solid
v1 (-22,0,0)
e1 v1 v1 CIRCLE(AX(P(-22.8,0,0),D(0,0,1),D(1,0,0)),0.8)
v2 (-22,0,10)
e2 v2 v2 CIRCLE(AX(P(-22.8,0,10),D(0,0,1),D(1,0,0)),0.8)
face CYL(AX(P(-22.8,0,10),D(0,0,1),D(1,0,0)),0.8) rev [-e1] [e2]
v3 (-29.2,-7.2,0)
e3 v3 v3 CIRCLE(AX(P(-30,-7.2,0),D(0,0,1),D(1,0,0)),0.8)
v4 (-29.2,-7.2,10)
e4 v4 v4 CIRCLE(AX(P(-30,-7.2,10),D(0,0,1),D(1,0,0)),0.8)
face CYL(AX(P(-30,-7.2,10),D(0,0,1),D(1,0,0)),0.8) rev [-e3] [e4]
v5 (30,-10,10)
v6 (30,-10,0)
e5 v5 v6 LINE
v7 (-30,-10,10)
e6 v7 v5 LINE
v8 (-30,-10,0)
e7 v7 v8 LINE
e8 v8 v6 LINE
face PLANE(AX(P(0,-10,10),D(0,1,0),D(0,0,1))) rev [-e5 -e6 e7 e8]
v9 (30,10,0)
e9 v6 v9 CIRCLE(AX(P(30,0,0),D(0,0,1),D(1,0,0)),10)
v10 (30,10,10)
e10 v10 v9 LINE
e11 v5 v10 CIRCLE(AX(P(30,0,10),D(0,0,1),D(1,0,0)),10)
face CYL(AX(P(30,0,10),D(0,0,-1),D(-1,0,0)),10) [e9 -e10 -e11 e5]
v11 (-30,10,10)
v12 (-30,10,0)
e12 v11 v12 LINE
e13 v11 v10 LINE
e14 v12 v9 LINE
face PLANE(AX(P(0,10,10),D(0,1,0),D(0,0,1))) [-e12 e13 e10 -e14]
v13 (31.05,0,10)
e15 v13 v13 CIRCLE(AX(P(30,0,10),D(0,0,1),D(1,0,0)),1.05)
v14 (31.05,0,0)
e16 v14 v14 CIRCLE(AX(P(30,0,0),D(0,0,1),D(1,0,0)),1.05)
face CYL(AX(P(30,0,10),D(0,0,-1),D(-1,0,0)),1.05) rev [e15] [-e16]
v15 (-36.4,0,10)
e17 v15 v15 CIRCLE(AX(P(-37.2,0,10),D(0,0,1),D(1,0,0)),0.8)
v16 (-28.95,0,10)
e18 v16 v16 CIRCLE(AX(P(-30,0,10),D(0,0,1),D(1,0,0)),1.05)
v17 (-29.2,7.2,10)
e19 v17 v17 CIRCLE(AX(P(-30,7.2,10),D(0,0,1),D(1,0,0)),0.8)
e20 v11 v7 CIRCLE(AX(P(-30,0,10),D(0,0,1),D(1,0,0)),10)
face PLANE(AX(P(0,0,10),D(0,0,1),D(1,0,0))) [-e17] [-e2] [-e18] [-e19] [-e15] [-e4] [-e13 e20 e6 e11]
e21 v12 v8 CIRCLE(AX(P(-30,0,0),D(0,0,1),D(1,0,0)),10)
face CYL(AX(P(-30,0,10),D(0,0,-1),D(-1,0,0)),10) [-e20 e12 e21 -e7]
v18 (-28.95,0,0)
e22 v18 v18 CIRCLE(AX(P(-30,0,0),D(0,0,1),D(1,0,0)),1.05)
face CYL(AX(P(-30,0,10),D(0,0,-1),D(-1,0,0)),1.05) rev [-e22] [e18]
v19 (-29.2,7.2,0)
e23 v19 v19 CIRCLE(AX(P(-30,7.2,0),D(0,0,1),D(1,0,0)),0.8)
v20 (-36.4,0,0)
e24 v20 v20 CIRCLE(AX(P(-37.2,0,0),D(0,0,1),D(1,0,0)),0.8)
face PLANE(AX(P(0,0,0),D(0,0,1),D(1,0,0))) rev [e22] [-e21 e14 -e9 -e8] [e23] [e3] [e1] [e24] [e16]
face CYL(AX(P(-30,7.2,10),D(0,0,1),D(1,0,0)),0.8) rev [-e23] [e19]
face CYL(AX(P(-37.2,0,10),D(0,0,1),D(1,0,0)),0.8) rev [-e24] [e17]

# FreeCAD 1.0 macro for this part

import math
import FreeCAD as App
import Part
import Sketcher
from FreeCAD import Vector
Q = App.Units.Quantity

doc = App.newDocument("Part")
body = doc.addObject("PartDesign::Body", "Body")

sketch1 = doc.addObject("Sketcher::SketchObject", "Sketch")
body.addObject(sketch1)
sketch1.AttachmentSupport = (doc.XY_Plane, [""])
sketch1.MapMode = "FlatFace"
sketch1.addGeometry(Part.LineSegment(Vector(-30, -10, 0), Vector(30, -10, 0)), False)
sketch1.addGeometry(Part.ArcOfCircle(Part.Circle(Vector(30, 0, 0), Vector(0, 0, 1), 10), math.radians(-90), math.radians(0)), False)
sketch1.addGeometry(Part.ArcOfCircle(Part.Circle(Vector(30, 0, 0), Vector(0, 0, 1), 10), math.radians(0), math.radians(90)), False)
sketch1.addGeometry(Part.LineSegment(Vector(30, 10, 0), Vector(-30, 10, 0)), False)
sketch1.addGeometry(Part.ArcOfCircle(Part.Circle(Vector(-30, 0, 0), Vector(0, 0, 1), 10), math.radians(90), math.radians(270)), False)
sketch1.addGeometry(Part.ArcOfCircle(Part.Circle(Vector(-30, 0, 0), Vector(0, 0, 1), 1.1), math.radians(-90), math.radians(0)), False)
sketch1.addGeometry(Part.ArcOfCircle(Part.Circle(Vector(-30, 0, 0), Vector(0, 0, 1), 1.1), math.radians(90), math.radians(270)), False)
sketch1.addGeometry(Part.ArcOfCircle(Part.Circle(Vector(-30, 0, 0), Vector(0, 0, 1), 1.1), math.radians(0), math.radians(90)), False)
sketch1.addGeometry(Part.ArcOfCircle(Part.Circle(Vector(30, 0, 0), Vector(0, 0, 1), 1.1), math.radians(90), math.radians(270)), False)
sketch1.addGeometry(Part.ArcOfCircle(Part.Circle(Vector(30, 0, 0), Vector(0, 0, 1), 1.1), math.radians(0), math.radians(90)), False)
sketch1.addGeometry(Part.ArcOfCircle(Part.Circle(Vector(30, 0, 0), Vector(0, 0, 1), 1.1), math.radians(-90), math.radians(0)), False)
sketch1.addConstraint(Sketcher.Constraint("Tangent", 0, 2, 1, 1))
sketch1.addConstraint(Sketcher.Constraint("Tangent", 1, 2, 2, 1))
sketch1.addConstraint(Sketcher.Constraint("Tangent", 2, 2, 3, 1))
sketch1.addConstraint(Sketcher.Constraint("Tangent", 3, 2, 4, 1))
sketch1.addConstraint(Sketcher.Constraint("Tangent", 4, 2, 0, 1))
sketch1.addConstraint(Sketcher.Constraint("Tangent", 5, 1, 6, 2))
sketch1.addConstraint(Sketcher.Constraint("Tangent", 6, 1, 7, 2))
sketch1.addConstraint(Sketcher.Constraint("Tangent", 7, 1, 5, 2))
sketch1.addConstraint(Sketcher.Constraint("Tangent", 8, 1, 9, 2))
sketch1.addConstraint(Sketcher.Constraint("Tangent", 9, 1, 10, 2))
sketch1.addConstraint(Sketcher.Constraint("Tangent", 10, 1, 8, 2))
sketch1.addConstraint(Sketcher.Constraint("Horizontal", 0))
sketch1.addConstraint(Sketcher.Constraint("Horizontal", 3))
sketch1.addConstraint(Sketcher.Constraint("Coincident", 5, 3, 4, 3))
sketch1.addConstraint(Sketcher.Constraint("Coincident", 8, 3, 1, 3))
sketch1.addConstraint(Sketcher.Constraint("Equal", 1, 2))
sketch1.addConstraint(Sketcher.Constraint("Equal", 7, 8))
sketch1.addConstraint(Sketcher.Constraint("Symmetric", 1, 3, 4, 3, -1, 1))
sketch1.addConstraint(Sketcher.Constraint("PointOnObject", 1, 2, -1))
sketch1.addConstraint(Sketcher.Constraint("PointOnObject", 7, 1, -1))
sketch1.addConstraint(Sketcher.Constraint("PointOnObject", 9, 1, -1))
sketch1.addConstraint(Sketcher.Constraint("Vertical", 4, 2, 5, 1))
sketch1.addConstraint(Sketcher.Constraint("Vertical", 5, 1, 6, 1))
sketch1.addConstraint(Sketcher.Constraint("Vertical", 2, 2, 8, 1))
sketch1.addConstraint(Sketcher.Constraint("Vertical", 8, 1, 10, 1))
sketch1.addConstraint(Sketcher.Constraint("Radius", 1, Q("10 mm")))
sketch1.addConstraint(Sketcher.Constraint("DistanceX", 0, 1, 0, 2, Q("60 mm")))
sketch1.addConstraint(Sketcher.Constraint("Radius", 5, Q("1.05 mm")))
pad1 = doc.addObject("PartDesign::Pad", "Pad")
body.addObject(pad1)
pad1.Profile = sketch1
pad1.Length = 10

sketch2 = doc.addObject("Sketcher::SketchObject", "Sketch001")
body.addObject(sketch2)
sketch2.AttachmentSupport = (doc.XY_Plane, [""])
sketch2.MapMode = "FlatFace"
sketch2.AttachmentOffset = App.Placement(Vector(0, 0, 10), App.Rotation())
sketch2.addGeometry(Part.Circle(Vector(-30, 7.2, 0), Vector(0, 0, 1), 0.8), False)
sketch2.addGeometry(Part.Circle(Vector(-37.2, 0, 0), Vector(0, 0, 1), 0.8), False)
sketch2.addGeometry(Part.Circle(Vector(-30, -7.2, 0), Vector(0, 0, 1), 0.8), False)
sketch2.addConstraint(Sketcher.Constraint("Equal", 0, 1))
sketch2.addConstraint(Sketcher.Constraint("Equal", 1, 2))
sketch2.addConstraint(Sketcher.Constraint("Symmetric", 0, 3, 2, 3, -1))
sketch2.addConstraint(Sketcher.Constraint("PointOnObject", 1, 3, -1))
sketch2.addConstraint(Sketcher.Constraint("Diameter", 0, Q("1.6 mm")))
sketch2.addConstraint(Sketcher.Constraint("DistanceX", 0, 3, -1, 1, Q("30 mm")))
sketch2.addConstraint(Sketcher.Constraint("DistanceY", -1, 1, 0, 3, Q("7.2 mm")))
sketch2.addConstraint(Sketcher.Constraint("DistanceX", 1, 3, -1, 1, Q("37.2 mm")))
doc.recompute()
hole = doc.addObject("PartDesign::Hole", "Hole")
body.addObject(hole)
hole.Profile = sketch2
hole.ThreadType = "None"
hole.Diameter = 1.6
hole.DepthType = "ThroughAll"

sketch3 = doc.addObject("Sketcher::SketchObject", "Sketch002")
body.addObject(sketch3)
sketch3.AttachmentSupport = (doc.XY_Plane, [""])
sketch3.MapMode = "FlatFace"
sketch3.AttachmentOffset = App.Placement(Vector(0, 0, 10), App.Rotation())
sketch3.addGeometry(Part.Circle(Vector(-22.8, 0, 0), Vector(0, 0, 1), 0.8), False)
sketch3.addConstraint(Sketcher.Constraint("PointOnObject", 0, 3, -1))
sketch3.addConstraint(Sketcher.Constraint("Diameter", 0, Q("1.6 mm")))
sketch3.addConstraint(Sketcher.Constraint("DistanceX", 0, 3, -1, 1, Q("22.8 mm")))
doc.recompute()
hole2 = doc.addObject("PartDesign::Hole", "Hole001")
body.addObject(hole2)
hole2.Profile = sketch3
hole2.ThreadType = "None"
hole2.Diameter = 1.6
hole2.DepthType = "ThroughAll"

doc.recompute()
